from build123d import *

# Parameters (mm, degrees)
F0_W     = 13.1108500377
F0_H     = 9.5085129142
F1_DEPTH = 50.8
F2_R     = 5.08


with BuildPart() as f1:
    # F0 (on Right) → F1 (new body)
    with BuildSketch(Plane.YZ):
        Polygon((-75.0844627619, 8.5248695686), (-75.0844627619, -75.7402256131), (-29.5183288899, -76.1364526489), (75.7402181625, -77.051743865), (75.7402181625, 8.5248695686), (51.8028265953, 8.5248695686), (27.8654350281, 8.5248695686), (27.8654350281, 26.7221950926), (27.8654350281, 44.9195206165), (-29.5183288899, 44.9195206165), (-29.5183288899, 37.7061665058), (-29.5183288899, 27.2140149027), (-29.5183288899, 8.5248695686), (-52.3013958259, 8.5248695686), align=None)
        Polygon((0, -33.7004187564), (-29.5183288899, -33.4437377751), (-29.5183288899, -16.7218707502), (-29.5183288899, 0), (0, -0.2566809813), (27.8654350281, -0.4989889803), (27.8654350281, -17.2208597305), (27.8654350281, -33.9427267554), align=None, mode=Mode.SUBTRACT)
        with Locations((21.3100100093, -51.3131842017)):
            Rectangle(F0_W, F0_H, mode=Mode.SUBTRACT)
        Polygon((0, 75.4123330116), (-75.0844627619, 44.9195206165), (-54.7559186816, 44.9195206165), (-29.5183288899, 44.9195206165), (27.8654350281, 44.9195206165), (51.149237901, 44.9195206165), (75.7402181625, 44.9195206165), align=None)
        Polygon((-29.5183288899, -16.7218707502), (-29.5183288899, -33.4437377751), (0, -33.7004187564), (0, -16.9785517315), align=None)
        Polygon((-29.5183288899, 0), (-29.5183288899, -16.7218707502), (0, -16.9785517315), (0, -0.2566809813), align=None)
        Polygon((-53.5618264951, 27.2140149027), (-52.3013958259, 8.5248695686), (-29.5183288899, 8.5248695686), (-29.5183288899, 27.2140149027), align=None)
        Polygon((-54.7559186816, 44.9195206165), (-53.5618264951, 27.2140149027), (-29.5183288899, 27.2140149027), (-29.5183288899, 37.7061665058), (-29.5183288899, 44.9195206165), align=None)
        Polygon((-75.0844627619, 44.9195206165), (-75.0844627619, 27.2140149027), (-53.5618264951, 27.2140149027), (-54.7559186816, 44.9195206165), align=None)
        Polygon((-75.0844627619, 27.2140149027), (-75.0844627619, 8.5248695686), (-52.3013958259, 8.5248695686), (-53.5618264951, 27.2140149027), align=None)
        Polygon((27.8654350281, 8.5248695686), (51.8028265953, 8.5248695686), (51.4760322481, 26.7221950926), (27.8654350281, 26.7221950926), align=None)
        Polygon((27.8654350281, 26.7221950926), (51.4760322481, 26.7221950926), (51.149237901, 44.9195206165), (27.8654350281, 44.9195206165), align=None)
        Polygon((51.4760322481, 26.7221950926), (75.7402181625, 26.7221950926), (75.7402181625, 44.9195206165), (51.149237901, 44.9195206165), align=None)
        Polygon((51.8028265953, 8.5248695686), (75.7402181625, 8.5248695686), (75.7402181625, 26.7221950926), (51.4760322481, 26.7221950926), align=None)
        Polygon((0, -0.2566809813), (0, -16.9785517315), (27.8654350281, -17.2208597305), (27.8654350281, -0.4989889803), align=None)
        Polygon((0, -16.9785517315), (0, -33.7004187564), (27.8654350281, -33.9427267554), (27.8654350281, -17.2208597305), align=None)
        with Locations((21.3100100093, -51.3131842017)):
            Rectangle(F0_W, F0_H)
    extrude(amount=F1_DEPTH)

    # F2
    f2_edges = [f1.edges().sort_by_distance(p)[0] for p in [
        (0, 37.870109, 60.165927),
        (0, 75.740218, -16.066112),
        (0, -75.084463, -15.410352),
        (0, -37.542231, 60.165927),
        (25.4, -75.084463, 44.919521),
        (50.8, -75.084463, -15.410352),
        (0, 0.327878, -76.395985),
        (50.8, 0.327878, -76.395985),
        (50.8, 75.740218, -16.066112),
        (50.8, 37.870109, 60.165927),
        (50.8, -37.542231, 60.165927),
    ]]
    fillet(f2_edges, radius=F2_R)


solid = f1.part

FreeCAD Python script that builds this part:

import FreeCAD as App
import Part
import Sketcher
Q = App.Units.Quantity


def edges_at(feature, points):
    """Names of the edges that pass closest to the given points."""
    edges = feature.Shape.Edges
    near = lambda p: min(range(len(edges)), key=lambda i: edges[i].distToShape(Part.Vertex(*p))[0])
    return sorted({f"Edge{near(p) + 1}" for p in points})

doc = App.newDocument("Part")
body = doc.addObject("PartDesign::Body", "Body")

sketch1 = body.newObject("Sketcher::SketchObject", "Sketch")
sketch1.AttachmentSupport = (doc.getObject("YZ_Plane"), [""])
sketch1.MapMode = "FlatFace"
sketch1.addGeometry([
    Part.LineSegment(App.Vector(-75, -76, 0), App.Vector(-30, -76, 0)),
    Part.LineSegment(App.Vector(-30, -76, 0), App.Vector(76, -77, 0)),
    Part.LineSegment(App.Vector(76, -77, 0), App.Vector(76, 45, 0)),
    Part.LineSegment(App.Vector(76, 45, 0), App.Vector(0, 75, 0)),
    Part.LineSegment(App.Vector(0, 75, 0), App.Vector(-75, 45, 0)),
    Part.LineSegment(App.Vector(-75, 45, 0), App.Vector(-75, -76, 0)),
], False)
sketch1.addConstraint([
    Sketcher.Constraint("Coincident", 0, 2, 1, 1),
    Sketcher.Constraint("Coincident", 1, 2, 2, 1),
    Sketcher.Constraint("Coincident", 2, 2, 3, 1),
    Sketcher.Constraint("Coincident", 3, 2, 4, 1),
    Sketcher.Constraint("Coincident", 4, 2, 5, 1),
    Sketcher.Constraint("Coincident", 5, 2, 0, 1),
    Sketcher.Constraint("Vertical", 2),
    Sketcher.Constraint("Vertical", 5),
    Sketcher.Constraint("PointOnObject", 3, 2, -2),
    Sketcher.Constraint("Parallel", 0, 1),
    Sketcher.Constraint("Horizontal", 2, 2, 4, 2),
    Sketcher.Constraint("Distance", 4, Q("81.04004 mm")),
    Sketcher.Constraint("DistanceY", 2, 1, 2, 2, Q("121.971264 mm")),
    Sketcher.Constraint("DistanceY", 5, 2, 5, 1, Q("120.659746 mm")),
    Sketcher.Constraint("DistanceX", 0, 2, -1, 1, Q("29.518329 mm")),
    Sketcher.Constraint("DistanceX", -1, 1, 1, 2, Q("75.740218 mm")),
    Sketcher.Constraint("DistanceY", -1, 1, 2, 2, Q("44.919521 mm")),
    Sketcher.Constraint("DistanceX", 4, 2, 2, 2, Q("150.824681 mm")),
])
pad1 = body.newObject("PartDesign::Pad", "Pad")
pad1.Profile = sketch1
pad1.Length = Q("2 in")
doc.recompute()

fillet = body.newObject("PartDesign::Fillet", "Fillet")
fillet.Base = (pad1, edges_at(pad1, [
    (0, 37.87, 60.166),
    (0, 75.74, -16.066),
    (0, -75.084, -15.41),
    (0, -37.542, 60.166),
    (25.4, -75.084, 44.92),
    (50.8, -75.084, -15.41),
    (0, 23.111, -76.594),
    (50.8, 23.111, -76.594),
    (50.8, 75.74, -16.066),
    (50.8, 37.87, 60.166),
    (50.8, -37.542, 60.166),
]))
fillet.Radius = Q("0.2 in")

doc.recompute()
